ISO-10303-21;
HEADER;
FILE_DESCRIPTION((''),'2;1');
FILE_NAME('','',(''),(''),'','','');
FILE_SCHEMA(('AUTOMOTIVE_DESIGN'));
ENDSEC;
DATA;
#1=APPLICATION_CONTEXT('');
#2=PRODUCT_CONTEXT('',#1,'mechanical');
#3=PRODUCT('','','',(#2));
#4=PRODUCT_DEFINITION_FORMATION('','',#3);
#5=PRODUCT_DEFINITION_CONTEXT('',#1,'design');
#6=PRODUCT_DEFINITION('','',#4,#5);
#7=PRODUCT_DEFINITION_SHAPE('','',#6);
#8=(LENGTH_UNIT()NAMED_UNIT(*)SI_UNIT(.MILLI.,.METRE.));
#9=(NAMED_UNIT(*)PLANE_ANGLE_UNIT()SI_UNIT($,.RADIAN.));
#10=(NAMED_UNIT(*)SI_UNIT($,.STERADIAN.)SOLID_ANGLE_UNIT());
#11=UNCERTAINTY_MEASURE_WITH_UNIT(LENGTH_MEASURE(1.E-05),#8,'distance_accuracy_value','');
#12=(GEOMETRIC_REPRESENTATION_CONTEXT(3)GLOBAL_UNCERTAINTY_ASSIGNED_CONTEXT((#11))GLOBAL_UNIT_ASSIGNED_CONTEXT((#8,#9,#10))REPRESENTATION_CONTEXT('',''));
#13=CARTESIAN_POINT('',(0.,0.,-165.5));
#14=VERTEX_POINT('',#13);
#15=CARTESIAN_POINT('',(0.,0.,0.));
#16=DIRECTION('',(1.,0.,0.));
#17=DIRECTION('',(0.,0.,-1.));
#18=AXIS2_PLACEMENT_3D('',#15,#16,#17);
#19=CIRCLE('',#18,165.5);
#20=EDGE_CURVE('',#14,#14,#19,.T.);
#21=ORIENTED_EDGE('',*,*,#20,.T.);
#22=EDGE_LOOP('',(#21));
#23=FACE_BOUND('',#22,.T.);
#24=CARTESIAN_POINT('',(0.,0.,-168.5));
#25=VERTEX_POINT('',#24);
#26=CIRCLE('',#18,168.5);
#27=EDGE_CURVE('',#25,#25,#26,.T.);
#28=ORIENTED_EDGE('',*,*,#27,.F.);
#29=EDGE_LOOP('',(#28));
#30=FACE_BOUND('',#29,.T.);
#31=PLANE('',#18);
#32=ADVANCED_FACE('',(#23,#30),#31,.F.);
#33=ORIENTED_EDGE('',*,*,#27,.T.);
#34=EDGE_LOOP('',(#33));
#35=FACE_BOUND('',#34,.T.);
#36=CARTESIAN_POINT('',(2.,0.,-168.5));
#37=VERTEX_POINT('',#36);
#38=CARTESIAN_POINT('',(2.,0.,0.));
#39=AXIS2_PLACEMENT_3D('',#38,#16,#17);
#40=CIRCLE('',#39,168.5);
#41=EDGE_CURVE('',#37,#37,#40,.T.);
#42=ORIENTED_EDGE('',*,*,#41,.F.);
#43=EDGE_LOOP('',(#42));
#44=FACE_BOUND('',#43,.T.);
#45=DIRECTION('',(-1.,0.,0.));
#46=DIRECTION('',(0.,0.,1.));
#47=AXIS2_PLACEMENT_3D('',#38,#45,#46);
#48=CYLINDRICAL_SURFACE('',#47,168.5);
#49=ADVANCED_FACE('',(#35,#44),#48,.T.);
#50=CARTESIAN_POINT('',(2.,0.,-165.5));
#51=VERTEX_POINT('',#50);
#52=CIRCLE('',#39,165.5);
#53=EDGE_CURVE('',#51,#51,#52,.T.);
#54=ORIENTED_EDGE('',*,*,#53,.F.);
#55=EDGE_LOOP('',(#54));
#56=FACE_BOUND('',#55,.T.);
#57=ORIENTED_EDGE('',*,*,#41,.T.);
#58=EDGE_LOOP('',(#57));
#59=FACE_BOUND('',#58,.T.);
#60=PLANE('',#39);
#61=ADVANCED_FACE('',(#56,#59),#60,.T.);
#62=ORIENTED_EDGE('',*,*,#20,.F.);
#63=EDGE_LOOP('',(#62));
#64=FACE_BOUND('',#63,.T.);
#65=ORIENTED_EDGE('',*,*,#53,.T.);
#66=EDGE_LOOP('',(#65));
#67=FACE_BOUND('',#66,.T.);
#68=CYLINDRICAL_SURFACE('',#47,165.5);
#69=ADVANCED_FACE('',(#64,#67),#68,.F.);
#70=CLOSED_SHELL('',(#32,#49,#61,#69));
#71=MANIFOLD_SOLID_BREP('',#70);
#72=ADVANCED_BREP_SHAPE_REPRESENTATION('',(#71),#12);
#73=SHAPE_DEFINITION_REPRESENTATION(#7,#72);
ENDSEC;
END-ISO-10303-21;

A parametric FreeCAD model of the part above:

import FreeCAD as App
import Part
import Sketcher
Q = App.Units.Quantity

doc = App.newDocument("Part")
params = doc.addObject("Spreadsheet::Sheet", "Params")
for row, (alias, value) in enumerate([
    ("sketch1_diameter", "337 mm"),
    ("sketch1_diameter2", "331 mm"),
    ("pad1_length", "2 mm"),
], start=1):
    params.set(f"A{row}", alias)
    params.set(f"B{row}", "=" + value)
    params.setAlias(f"B{row}", alias)

body = doc.addObject("PartDesign::Body", "Body")

sketch1 = body.newObject("Sketcher::SketchObject", "Sketch")
sketch1.AttachmentSupport = (doc.getObject("YZ_Plane"), [""])
sketch1.MapMode = "FlatFace"
sketch1.addGeometry(Part.Circle(App.Vector(0, 0, 0), App.Vector(0, 0, 1), 168), False)
sketch1.addGeometry(Part.Circle(App.Vector(0, 0, 0), App.Vector(0, 0, 1), 166), False)
sketch1.addConstraint(Sketcher.Constraint("Coincident", 0, 3, -1, 1))
sketch1.addConstraint(Sketcher.Constraint("Coincident", 1, 3, -1, 1))
sketch1.addConstraint(Sketcher.Constraint("Diameter", 0, Q("337 mm")))
sketch1.addConstraint(Sketcher.Constraint("Diameter", 1, Q("331 mm")))
sketch1.setExpression("Constraints[2]", "Params.sketch1_diameter")
sketch1.setExpression("Constraints[3]", "Params.sketch1_diameter2")
pad1 = body.newObject("PartDesign::Pad", "Pad")
pad1.Profile = sketch1
pad1.setExpression("Length", "Params.pad1_length")

doc.recompute()
